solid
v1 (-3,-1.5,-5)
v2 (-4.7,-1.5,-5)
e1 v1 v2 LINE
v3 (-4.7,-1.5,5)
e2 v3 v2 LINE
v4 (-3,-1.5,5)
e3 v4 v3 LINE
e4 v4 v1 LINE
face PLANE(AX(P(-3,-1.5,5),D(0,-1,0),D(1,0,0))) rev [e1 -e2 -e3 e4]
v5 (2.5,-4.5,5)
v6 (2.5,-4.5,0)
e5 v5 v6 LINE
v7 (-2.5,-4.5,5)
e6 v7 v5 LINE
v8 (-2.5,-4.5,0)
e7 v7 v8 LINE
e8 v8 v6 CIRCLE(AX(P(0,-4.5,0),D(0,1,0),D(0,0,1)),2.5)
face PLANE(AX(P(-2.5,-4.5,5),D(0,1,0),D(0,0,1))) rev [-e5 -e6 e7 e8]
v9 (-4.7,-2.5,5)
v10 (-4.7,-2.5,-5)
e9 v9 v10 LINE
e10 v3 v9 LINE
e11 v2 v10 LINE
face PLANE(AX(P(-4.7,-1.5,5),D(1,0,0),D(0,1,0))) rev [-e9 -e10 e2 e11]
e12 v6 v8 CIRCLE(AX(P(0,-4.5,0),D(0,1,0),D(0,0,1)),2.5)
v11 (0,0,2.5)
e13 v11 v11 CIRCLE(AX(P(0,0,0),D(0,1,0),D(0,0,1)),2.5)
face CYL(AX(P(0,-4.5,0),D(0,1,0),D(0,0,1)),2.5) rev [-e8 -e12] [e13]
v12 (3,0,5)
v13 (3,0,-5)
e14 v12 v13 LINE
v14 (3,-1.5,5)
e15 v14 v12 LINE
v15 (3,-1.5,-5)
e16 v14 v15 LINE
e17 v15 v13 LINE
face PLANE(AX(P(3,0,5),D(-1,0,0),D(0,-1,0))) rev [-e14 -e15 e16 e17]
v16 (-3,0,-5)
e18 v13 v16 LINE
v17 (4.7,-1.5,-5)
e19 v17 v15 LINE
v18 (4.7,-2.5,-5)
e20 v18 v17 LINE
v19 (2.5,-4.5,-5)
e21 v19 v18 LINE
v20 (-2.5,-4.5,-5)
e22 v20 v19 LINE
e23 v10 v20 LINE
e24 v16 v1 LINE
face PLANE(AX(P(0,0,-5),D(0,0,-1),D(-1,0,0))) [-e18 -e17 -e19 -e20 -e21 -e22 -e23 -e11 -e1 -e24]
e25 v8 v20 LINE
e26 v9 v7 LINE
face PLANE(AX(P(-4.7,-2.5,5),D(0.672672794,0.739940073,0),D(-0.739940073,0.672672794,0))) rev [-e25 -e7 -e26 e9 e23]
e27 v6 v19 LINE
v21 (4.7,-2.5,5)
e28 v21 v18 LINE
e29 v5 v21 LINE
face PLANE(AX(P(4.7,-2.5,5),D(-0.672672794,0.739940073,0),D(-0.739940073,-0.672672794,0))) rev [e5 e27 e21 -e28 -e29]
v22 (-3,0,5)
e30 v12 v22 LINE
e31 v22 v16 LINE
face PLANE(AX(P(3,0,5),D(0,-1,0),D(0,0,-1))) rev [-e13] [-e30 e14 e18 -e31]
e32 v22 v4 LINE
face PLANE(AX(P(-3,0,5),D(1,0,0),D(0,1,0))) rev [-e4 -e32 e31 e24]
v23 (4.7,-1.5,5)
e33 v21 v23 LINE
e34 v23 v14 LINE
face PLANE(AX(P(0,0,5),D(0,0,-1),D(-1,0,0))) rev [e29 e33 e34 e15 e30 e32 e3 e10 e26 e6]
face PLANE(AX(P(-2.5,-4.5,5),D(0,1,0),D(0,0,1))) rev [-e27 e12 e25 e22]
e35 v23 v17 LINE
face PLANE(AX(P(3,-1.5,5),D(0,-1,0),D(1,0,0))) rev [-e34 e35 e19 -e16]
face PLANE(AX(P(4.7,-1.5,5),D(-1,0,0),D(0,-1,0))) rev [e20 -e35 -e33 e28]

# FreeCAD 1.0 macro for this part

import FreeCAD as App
import Part
import Sketcher
from FreeCAD import Vector
Q = App.Units.Quantity

doc = App.newDocument("Part")
body = doc.addObject("PartDesign::Body", "Body")

sketch1 = doc.addObject("Sketcher::SketchObject", "Sketch")
body.addObject(sketch1)
sketch1.AttachmentSupport = (doc.XY_Plane, [""])
sketch1.MapMode = "FlatFace"
sketch1.addGeometry([
    Part.LineSegment(Vector(3, 0, 0), Vector(-3, 0, 0)),
    Part.LineSegment(Vector(-3, 0, 0), Vector(-3, -1.5, 0)),
    Part.LineSegment(Vector(-3, -1.5, 0), Vector(-4.7, -1.5, 0)),
    Part.LineSegment(Vector(-4.7, -1.5, 0), Vector(-4.7, -2.5, 0)),
    Part.LineSegment(Vector(-4.7, -2.5, 0), Vector(-2.5, -4.5, 0)),
    Part.LineSegment(Vector(-2.5, -4.5, 0), Vector(2.5, -4.5, 0)),
    Part.LineSegment(Vector(2.5, -4.5, 0), Vector(4.7, -2.5, 0)),
    Part.LineSegment(Vector(4.7, -2.5, 0), Vector(4.7, -1.5, 0)),
    Part.LineSegment(Vector(4.7, -1.5, 0), Vector(3, -1.5, 0)),
    Part.LineSegment(Vector(3, -1.5, 0), Vector(3, 0, 0)),
], False)
sketch1.addConstraint([
    Sketcher.Constraint("Coincident", 0, 2, 1, 1),
    Sketcher.Constraint("Coincident", 1, 2, 2, 1),
    Sketcher.Constraint("Coincident", 2, 2, 3, 1),
    Sketcher.Constraint("Coincident", 3, 2, 4, 1),
    Sketcher.Constraint("Coincident", 4, 2, 5, 1),
    Sketcher.Constraint("Coincident", 5, 2, 6, 1),
    Sketcher.Constraint("Coincident", 6, 2, 7, 1),
    Sketcher.Constraint("Coincident", 7, 2, 8, 1),
    Sketcher.Constraint("Coincident", 8, 2, 9, 1),
    Sketcher.Constraint("Coincident", 9, 2, 0, 1),
    Sketcher.Constraint("Horizontal", 0),
    Sketcher.Constraint("Vertical", 1),
    Sketcher.Constraint("Horizontal", 2),
    Sketcher.Constraint("Vertical", 3),
    Sketcher.Constraint("Horizontal", 5),
    Sketcher.Constraint("Vertical", 7),
    Sketcher.Constraint("Horizontal", 8),
    Sketcher.Constraint("Vertical", 9),
    Sketcher.Constraint("Symmetric", 0, 2, 9, 2, -1, 1),
    Sketcher.Constraint("Symmetric", 3, 2, 6, 2, -2),
    Sketcher.Constraint("Horizontal", 2, 2, 7, 2),
    Sketcher.Constraint("Equal", 4, 6),
    Sketcher.Constraint("DistanceX", 0, 2, 0, 1, Q("6 mm")),
    Sketcher.Constraint("DistanceX", 5, 1, 5, 2, Q("5 mm")),
    Sketcher.Constraint("DistanceY", 3, 2, 3, 1, Q("1 mm")),
    Sketcher.Constraint("DistanceX", 2, 2, 2, 1, Q("1.7 mm")),
    Sketcher.Constraint("DistanceY", 1, 2, 1, 1, Q("1.5 mm")),
    Sketcher.Constraint("DistanceY", 4, 2, 3, 2, Q("2 mm")),
])
pad1 = doc.addObject("PartDesign::Pad", "Pad")
body.addObject(pad1)
pad1.Profile = sketch1
pad1.Length = 10
pad1.Midplane = True

sketch2 = doc.addObject("Sketcher::SketchObject", "Sketch001")
body.addObject(sketch2)
sketch2.AttachmentSupport = (doc.XZ_Plane, [""])
sketch2.MapMode = "FlatFace"
sketch2.addGeometry(Part.Circle(Vector(0, 0, 0), Vector(0, 0, 1), 2.5), False)
sketch2.addConstraint([
    Sketcher.Constraint("Coincident", 0, 3, -1, 1),
    Sketcher.Constraint("Diameter", 0, Q("5 mm")),
])
pocket1 = doc.addObject("PartDesign::Pocket", "Pocket")
body.addObject(pocket1)
pocket1.Profile = sketch2
pocket1.Type = "ThroughAll"
pocket1.Reversed = True

doc.recompute()
